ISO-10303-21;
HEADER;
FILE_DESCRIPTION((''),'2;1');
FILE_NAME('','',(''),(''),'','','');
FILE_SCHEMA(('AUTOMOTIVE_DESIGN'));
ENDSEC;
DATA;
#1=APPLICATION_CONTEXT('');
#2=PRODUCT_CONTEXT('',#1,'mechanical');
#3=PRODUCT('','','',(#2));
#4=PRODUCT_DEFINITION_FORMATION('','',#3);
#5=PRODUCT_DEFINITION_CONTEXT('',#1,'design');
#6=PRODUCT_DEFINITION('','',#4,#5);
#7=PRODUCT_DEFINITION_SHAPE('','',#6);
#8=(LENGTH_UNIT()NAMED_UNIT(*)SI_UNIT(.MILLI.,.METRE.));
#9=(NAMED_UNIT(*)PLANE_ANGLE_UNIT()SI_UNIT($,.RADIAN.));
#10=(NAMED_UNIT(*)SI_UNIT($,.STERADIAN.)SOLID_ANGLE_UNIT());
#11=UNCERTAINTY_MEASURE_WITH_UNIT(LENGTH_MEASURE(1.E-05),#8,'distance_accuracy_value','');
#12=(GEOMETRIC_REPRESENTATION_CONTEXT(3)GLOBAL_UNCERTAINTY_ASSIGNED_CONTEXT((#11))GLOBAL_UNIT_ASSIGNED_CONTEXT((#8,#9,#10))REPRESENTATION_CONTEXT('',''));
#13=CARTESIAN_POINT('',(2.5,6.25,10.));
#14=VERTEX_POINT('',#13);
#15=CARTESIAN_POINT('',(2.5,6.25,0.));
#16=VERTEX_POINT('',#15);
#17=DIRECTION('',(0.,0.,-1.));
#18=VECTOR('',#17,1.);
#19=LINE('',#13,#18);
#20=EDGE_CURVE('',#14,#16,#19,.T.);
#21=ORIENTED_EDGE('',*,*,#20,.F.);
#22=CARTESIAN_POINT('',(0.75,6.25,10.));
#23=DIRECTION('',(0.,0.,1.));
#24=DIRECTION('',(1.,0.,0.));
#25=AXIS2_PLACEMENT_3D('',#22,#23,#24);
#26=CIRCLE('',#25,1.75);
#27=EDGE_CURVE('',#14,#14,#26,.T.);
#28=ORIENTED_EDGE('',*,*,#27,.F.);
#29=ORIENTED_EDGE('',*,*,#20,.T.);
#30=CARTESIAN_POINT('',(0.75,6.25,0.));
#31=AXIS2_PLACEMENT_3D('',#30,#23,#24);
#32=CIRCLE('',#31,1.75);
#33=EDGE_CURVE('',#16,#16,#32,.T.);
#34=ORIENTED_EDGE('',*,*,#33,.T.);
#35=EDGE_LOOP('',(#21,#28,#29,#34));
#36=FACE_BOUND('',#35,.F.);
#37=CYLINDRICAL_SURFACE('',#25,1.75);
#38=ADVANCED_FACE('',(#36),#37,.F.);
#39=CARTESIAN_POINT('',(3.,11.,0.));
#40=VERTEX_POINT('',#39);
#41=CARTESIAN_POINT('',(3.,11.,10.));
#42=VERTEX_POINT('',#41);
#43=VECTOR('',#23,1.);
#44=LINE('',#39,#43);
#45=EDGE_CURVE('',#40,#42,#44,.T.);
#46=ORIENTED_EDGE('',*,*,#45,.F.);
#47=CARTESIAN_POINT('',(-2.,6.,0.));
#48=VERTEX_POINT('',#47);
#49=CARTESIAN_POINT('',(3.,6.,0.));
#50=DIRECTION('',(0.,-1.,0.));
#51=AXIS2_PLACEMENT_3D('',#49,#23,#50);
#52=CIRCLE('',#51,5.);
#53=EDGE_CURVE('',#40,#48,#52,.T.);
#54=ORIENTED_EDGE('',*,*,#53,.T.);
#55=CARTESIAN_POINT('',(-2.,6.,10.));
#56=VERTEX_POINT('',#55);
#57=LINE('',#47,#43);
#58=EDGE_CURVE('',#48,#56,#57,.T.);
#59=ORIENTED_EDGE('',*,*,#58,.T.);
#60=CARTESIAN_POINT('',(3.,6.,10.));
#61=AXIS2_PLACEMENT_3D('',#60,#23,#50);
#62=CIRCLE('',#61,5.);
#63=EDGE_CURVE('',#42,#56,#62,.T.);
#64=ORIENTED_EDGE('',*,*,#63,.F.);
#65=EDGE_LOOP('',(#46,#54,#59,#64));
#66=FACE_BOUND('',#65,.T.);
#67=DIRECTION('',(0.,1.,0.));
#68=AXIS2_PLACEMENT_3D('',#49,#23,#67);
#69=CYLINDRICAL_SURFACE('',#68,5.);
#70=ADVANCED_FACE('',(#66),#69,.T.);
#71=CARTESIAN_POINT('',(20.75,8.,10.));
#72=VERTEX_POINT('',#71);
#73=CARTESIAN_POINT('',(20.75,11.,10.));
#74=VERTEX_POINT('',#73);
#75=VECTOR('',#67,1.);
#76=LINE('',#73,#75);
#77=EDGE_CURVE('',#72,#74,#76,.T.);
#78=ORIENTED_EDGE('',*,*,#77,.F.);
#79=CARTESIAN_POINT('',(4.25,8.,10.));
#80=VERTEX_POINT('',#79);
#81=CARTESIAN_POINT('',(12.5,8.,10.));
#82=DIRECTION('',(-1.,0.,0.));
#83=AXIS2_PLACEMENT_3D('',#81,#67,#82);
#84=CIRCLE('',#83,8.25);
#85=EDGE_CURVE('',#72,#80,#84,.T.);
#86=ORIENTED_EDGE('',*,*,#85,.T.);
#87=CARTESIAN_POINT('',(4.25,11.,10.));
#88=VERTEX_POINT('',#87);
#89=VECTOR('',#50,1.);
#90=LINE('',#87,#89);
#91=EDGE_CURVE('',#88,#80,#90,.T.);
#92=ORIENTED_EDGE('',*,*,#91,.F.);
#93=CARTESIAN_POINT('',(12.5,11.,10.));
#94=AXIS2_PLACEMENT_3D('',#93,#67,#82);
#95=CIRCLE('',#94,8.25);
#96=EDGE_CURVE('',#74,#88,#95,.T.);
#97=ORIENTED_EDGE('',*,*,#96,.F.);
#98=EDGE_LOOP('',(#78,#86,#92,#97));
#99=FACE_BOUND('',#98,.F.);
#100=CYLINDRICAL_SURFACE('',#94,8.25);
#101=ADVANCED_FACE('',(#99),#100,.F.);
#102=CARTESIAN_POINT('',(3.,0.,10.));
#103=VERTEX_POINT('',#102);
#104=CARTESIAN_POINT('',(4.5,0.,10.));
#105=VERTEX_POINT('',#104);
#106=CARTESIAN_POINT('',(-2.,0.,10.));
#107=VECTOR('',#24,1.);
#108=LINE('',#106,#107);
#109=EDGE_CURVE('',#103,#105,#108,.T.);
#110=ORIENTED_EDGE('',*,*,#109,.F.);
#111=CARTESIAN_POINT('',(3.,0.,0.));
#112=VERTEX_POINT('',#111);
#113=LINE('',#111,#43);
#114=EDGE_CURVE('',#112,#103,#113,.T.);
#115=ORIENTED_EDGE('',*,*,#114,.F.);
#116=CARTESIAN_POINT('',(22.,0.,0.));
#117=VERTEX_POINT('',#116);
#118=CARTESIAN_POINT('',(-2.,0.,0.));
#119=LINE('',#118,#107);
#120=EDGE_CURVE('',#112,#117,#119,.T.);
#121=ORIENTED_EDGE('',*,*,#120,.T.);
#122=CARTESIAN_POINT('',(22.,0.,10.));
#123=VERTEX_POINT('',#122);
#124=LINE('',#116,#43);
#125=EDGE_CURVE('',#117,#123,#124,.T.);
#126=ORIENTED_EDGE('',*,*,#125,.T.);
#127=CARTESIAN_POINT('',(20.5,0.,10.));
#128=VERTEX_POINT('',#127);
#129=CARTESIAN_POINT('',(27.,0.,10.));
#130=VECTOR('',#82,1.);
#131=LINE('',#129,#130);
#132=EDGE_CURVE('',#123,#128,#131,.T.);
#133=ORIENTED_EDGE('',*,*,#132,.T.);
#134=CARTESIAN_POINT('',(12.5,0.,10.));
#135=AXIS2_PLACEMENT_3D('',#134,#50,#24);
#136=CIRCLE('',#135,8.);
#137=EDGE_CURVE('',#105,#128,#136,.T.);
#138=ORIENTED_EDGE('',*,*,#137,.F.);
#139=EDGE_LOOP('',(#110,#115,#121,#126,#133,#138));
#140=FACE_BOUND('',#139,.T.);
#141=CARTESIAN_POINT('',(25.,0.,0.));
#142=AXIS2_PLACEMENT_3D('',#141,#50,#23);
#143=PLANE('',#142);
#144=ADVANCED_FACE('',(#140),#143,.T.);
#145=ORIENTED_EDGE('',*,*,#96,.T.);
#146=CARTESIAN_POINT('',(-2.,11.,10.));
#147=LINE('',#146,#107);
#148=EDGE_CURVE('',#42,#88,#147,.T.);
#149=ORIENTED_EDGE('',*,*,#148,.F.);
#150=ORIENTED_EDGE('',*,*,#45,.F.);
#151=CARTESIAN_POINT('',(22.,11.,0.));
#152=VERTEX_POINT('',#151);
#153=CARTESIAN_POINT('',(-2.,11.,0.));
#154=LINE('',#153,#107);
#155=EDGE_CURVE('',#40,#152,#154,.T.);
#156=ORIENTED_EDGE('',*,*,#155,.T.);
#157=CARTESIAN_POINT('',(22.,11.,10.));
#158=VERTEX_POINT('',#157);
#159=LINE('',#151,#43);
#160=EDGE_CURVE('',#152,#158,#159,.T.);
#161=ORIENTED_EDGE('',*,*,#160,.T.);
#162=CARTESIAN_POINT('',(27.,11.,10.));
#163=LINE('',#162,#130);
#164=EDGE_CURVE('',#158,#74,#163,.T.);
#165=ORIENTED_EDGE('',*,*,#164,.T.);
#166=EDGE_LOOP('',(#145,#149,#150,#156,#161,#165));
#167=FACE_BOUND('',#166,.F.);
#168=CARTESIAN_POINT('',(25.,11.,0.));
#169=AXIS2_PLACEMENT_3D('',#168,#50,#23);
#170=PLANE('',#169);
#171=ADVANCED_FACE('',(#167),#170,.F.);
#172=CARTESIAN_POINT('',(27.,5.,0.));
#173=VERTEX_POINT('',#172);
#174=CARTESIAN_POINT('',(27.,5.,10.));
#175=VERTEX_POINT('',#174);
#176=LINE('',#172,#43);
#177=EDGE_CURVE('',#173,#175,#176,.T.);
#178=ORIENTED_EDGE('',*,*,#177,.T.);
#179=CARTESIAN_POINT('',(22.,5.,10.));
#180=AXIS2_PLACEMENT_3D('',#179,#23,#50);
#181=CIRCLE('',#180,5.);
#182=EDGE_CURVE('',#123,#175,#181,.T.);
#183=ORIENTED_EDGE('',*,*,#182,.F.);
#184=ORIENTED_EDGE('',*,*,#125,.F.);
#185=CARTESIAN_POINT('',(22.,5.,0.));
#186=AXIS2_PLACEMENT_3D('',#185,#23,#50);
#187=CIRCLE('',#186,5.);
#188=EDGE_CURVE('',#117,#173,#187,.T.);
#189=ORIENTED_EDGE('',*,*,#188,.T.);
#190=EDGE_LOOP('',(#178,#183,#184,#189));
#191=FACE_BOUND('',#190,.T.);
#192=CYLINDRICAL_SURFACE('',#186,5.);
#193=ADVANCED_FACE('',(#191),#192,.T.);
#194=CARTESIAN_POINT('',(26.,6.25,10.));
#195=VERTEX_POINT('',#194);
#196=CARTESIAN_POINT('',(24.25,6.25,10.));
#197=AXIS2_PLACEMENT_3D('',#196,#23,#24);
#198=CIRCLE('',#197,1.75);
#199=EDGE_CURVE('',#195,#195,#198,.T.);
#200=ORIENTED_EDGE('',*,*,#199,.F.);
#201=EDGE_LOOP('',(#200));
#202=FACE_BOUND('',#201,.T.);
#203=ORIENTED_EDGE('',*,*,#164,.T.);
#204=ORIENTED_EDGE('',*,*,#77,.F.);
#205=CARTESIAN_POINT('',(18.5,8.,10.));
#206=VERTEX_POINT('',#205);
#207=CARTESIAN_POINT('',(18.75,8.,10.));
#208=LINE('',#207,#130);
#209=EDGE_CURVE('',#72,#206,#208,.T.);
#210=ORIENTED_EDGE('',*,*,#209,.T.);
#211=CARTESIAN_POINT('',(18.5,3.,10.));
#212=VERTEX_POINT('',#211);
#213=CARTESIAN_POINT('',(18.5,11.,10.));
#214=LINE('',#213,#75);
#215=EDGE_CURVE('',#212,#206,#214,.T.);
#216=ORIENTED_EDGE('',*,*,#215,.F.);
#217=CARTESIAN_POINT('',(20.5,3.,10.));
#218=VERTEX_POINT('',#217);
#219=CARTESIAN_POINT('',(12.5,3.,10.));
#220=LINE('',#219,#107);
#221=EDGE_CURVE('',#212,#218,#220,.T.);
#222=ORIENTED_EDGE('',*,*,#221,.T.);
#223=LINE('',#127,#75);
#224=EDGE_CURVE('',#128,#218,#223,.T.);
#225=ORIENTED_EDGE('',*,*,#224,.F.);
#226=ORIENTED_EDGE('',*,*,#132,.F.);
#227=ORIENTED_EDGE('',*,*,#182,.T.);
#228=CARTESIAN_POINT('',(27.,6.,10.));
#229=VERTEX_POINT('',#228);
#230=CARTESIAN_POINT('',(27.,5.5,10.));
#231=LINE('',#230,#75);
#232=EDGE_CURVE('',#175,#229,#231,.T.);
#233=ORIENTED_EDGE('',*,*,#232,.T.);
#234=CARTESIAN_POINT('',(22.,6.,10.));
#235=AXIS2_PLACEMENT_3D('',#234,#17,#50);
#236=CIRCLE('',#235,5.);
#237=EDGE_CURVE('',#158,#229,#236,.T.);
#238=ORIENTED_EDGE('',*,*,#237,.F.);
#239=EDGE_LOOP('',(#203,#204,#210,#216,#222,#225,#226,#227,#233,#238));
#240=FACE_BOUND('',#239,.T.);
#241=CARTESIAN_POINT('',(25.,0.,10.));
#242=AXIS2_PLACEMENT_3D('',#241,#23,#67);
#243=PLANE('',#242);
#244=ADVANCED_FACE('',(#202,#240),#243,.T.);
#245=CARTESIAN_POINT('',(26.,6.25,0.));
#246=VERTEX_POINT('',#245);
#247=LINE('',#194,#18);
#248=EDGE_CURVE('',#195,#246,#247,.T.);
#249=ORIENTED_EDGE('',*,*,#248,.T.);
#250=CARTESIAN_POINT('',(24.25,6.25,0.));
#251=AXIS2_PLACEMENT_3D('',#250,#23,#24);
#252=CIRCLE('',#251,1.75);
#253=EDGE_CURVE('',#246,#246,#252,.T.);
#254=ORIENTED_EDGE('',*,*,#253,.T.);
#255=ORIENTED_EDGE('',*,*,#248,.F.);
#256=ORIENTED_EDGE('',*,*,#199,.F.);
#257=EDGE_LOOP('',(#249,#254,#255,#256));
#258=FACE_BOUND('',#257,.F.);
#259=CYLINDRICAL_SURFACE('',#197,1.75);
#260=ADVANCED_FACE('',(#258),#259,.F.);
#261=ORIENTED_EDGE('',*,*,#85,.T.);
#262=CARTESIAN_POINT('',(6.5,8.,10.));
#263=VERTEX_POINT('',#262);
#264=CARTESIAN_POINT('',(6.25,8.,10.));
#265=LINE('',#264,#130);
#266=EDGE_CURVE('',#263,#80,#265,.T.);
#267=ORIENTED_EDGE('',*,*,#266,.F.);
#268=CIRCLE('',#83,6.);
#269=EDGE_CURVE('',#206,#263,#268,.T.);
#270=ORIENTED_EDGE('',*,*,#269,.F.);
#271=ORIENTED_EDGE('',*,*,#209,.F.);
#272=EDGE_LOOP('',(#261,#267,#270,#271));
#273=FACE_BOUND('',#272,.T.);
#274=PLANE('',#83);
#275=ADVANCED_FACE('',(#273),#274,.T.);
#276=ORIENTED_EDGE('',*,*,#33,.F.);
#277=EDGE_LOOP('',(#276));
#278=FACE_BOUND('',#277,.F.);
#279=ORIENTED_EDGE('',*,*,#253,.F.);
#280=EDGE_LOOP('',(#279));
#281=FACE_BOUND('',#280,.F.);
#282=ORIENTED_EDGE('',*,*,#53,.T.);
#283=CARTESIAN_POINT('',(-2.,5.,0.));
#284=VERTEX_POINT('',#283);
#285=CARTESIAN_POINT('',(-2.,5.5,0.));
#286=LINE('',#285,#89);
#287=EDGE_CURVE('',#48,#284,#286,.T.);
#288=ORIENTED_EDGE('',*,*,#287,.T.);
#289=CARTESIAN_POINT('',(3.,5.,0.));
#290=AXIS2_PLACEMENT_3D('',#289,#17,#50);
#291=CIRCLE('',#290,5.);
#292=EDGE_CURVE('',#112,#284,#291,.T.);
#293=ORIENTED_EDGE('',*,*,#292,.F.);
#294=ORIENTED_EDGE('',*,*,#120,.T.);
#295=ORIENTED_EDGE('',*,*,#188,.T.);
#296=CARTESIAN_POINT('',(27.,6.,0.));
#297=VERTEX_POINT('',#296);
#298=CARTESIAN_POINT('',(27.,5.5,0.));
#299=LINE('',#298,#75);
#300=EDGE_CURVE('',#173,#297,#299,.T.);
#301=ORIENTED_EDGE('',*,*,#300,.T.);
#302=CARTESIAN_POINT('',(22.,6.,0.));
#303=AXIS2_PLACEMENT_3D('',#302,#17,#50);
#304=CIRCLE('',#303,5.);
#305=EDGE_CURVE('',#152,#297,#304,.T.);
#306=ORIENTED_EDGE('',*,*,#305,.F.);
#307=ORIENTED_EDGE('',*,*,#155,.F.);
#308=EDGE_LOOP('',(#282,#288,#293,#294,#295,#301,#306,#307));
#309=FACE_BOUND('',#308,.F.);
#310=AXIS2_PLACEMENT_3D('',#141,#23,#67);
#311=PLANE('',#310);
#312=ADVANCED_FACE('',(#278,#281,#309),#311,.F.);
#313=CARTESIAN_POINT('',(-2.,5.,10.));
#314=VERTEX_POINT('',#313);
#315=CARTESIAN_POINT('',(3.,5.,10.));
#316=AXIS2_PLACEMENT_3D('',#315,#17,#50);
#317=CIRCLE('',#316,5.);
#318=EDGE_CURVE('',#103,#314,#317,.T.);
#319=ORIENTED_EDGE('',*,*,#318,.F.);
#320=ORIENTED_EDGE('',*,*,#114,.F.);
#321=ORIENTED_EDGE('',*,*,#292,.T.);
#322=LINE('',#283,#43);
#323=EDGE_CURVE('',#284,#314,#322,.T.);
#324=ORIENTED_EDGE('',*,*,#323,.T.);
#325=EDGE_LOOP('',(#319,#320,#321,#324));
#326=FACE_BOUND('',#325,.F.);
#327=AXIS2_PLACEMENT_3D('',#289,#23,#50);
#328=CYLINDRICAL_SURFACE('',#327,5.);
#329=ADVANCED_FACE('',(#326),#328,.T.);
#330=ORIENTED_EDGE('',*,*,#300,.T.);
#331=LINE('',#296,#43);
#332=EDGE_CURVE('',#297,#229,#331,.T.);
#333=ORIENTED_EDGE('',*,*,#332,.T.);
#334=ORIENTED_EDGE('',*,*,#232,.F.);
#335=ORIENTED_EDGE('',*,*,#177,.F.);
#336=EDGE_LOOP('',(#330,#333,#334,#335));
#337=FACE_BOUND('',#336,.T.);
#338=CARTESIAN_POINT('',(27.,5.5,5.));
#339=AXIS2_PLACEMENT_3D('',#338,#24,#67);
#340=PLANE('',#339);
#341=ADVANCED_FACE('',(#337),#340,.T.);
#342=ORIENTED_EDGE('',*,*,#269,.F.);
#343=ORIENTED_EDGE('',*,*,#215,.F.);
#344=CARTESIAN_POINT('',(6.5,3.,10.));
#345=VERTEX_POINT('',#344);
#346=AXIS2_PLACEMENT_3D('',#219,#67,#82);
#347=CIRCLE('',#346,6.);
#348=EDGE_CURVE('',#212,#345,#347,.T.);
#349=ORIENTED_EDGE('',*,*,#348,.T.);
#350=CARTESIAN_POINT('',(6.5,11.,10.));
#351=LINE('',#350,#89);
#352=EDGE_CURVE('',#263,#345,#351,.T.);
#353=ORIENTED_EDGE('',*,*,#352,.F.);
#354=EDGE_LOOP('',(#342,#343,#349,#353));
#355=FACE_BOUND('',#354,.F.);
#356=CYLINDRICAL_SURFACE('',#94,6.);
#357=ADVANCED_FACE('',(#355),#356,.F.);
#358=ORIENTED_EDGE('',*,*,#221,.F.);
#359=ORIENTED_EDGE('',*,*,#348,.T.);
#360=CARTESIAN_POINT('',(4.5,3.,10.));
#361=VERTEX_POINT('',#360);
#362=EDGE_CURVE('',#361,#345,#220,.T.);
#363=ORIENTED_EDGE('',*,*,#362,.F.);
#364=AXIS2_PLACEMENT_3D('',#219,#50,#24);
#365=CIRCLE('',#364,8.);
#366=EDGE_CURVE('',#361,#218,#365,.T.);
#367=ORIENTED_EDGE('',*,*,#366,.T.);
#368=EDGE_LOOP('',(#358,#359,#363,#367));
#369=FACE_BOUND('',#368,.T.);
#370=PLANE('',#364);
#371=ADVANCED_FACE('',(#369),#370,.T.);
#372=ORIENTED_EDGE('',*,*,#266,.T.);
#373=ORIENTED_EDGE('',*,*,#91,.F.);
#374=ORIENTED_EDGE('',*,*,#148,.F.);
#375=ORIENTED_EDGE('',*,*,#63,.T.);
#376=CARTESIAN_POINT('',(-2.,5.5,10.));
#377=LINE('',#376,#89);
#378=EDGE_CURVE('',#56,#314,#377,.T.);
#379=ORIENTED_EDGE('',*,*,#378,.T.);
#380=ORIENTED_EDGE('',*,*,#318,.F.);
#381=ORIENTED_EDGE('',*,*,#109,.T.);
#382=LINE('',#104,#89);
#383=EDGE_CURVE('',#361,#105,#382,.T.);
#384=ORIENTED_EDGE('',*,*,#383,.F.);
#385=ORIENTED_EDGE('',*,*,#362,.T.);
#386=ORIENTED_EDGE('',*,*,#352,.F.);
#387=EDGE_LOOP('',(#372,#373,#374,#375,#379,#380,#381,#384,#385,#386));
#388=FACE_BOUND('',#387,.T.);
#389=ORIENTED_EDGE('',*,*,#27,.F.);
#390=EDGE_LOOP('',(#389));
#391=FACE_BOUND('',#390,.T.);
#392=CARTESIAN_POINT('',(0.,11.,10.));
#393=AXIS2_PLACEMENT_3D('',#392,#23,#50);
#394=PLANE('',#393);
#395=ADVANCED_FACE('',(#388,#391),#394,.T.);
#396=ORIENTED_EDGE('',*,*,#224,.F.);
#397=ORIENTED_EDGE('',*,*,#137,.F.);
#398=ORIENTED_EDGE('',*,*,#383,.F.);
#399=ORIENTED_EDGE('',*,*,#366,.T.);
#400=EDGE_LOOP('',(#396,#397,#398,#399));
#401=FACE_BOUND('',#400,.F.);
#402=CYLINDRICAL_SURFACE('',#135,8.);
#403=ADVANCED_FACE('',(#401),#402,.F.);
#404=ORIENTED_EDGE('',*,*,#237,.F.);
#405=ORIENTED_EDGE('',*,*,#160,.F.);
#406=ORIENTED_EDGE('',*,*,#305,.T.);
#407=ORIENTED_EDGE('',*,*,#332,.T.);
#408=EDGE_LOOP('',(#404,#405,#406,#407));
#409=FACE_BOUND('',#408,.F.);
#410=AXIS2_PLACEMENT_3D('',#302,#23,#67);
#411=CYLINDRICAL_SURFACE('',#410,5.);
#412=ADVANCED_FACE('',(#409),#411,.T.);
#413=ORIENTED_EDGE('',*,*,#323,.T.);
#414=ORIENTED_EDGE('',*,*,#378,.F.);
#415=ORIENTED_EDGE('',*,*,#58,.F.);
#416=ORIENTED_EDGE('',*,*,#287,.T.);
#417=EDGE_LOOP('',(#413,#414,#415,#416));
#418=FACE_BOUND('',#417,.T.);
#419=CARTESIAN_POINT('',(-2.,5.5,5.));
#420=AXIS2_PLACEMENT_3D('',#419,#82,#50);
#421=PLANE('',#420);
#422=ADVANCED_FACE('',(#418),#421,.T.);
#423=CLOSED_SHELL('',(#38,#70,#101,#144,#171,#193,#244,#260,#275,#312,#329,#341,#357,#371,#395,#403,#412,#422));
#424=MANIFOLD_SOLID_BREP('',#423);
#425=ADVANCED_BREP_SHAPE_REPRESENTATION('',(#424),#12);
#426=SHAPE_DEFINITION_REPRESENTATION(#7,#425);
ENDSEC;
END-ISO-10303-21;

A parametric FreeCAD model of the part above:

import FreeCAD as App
import Part
import Sketcher


def edges_at(feature, points):
    """Names of the edges that pass closest to the given points."""
    edges = feature.Shape.Edges
    near = lambda p: min(range(len(edges)), key=lambda i: edges[i].distToShape(Part.Vertex(*p))[0])
    return sorted({f"Edge{near(p) + 1}" for p in points})


def add_polygon(sketch, points):
    """Adds a closed chain of lines whose ends are joined by coincident constraints."""
    first, n = sketch.GeometryCount, len(points)
    for a, b in zip(points, points[1:] + points[:1]):
        sketch.addGeometry(Part.LineSegment(App.Vector(*a, 0), App.Vector(*b, 0)), False)
    for i in range(n):
        sketch.addConstraint(Sketcher.Constraint("Coincident", first + i, 2, first + (i + 1) % n, 1))

doc = App.newDocument("Part")
body = doc.addObject("PartDesign::Body", "Body")

sketch1 = doc.addObject("Sketcher::SketchObject", "Sketch")
body.addObject(sketch1)
sketch1.AttachmentSupport = (doc.XY_Plane, [""])
sketch1.MapMode = "FlatFace"
add_polygon(sketch1, [(0, 11), (0, 0), (25, 0), (25, 11)])
sketch1.addConstraint([
    Sketcher.Constraint("Vertical", 0),
    Sketcher.Constraint("Horizontal", 1),
    Sketcher.Constraint("Vertical", 2),
    Sketcher.Constraint("Horizontal", 3),
    Sketcher.Constraint("Coincident", 0, 2, -1, 1),
    Sketcher.Constraint("DistanceX", 1, 1, 1, 2, 25.0),
    Sketcher.Constraint("DistanceY", 0, 2, 0, 1, 11.0),
])
pad1 = doc.addObject("PartDesign::Pad", "Pad")
body.addObject(pad1)
pad1.Profile = sketch1
pad1.Length = 10

sketch2 = doc.addObject("Sketcher::SketchObject", "Sketch001")
body.addObject(sketch2)
sketch2.AttachmentSupport = (doc.XZ_Plane, [""])
sketch2.MapMode = "FlatFace"
sketch2.addGeometry(Part.Circle(App.Vector(12, 10, 0), App.Vector(0, 0, 1), 8), False)
sketch2.addConstraint([
    Sketcher.Constraint("Diameter", 0, 16.0),
    Sketcher.Constraint("DistanceY", -1, 1, 0, 3, 10.0),
    Sketcher.Constraint("DistanceX", -1, 1, 0, 3, 12.5),
])
pocket1 = doc.addObject("PartDesign::Pocket", "Pocket")
body.addObject(pocket1)
pocket1.Profile = sketch2
pocket1.Length = 3

sketch3 = doc.addObject("Sketcher::SketchObject", "Sketch002")
body.addObject(sketch3)
sketch3.AttachmentSupport = (doc.XZ_Plane, [""])
sketch3.MapMode = "FlatFace"
sketch3.AttachmentOffset = App.Placement(App.Vector(0, 0, -11), App.Rotation())
sketch3.addGeometry(Part.Circle(App.Vector(12, 10, 0), App.Vector(0, 0, 1), 6), False)
sketch3.addConstraint([
    Sketcher.Constraint("Diameter", 0, 12.0),
    Sketcher.Constraint("DistanceY", -1, 1, 0, 3, 10.0),
    Sketcher.Constraint("DistanceX", -1, 1, 0, 3, 12.5),
])
pocket2 = doc.addObject("PartDesign::Pocket", "Pocket001")
body.addObject(pocket2)
pocket2.Profile = sketch3
pocket2.Length = 9
pocket2.Reversed = True

sketch4 = doc.addObject("Sketcher::SketchObject", "Sketch003")
body.addObject(sketch4)
sketch4.AttachmentSupport = (doc.YZ_Plane, [""])
sketch4.MapMode = "FlatFace"
add_polygon(sketch4, [(11, 10), (11, 0), (0, 0), (0, 10)])
sketch4.addConstraint([
    Sketcher.Constraint("Vertical", 0),
    Sketcher.Constraint("Horizontal", 1),
    Sketcher.Constraint("Vertical", 2),
    Sketcher.Constraint("Horizontal", 3),
    Sketcher.Constraint("Coincident", 1, 2, -1, 1),
    Sketcher.Constraint("DistanceX", 1, 2, 1, 1, 11.0),
    Sketcher.Constraint("DistanceY", 0, 2, 0, 1, 10.0),
])
pad2 = doc.addObject("PartDesign::Pad", "Pad001")
body.addObject(pad2)
pad2.Profile = sketch4
pad2.Length = 2
pad2.Reversed = True

sketch5 = doc.addObject("Sketcher::SketchObject", "Sketch004")
body.addObject(sketch5)
sketch5.AttachmentSupport = (doc.YZ_Plane, [""])
sketch5.MapMode = "FlatFace"
sketch5.AttachmentOffset = App.Placement(App.Vector(0, 0, 25), App.Rotation())
add_polygon(sketch5, [(0, 10), (0, 0), (11, 0), (11, 10)])
sketch5.addConstraint([
    Sketcher.Constraint("Vertical", 0),
    Sketcher.Constraint("Horizontal", 1),
    Sketcher.Constraint("Vertical", 2),
    Sketcher.Constraint("Horizontal", 3),
    Sketcher.Constraint("Coincident", 0, 2, -1, 1),
    Sketcher.Constraint("DistanceX", 1, 1, 1, 2, 11.0),
    Sketcher.Constraint("DistanceY", 0, 2, 0, 1, 10.0),
])
pad3 = doc.addObject("PartDesign::Pad", "Pad002")
body.addObject(pad3)
pad3.Profile = sketch5
pad3.Length = 2
doc.recompute()

fillet = doc.addObject("PartDesign::Fillet", "Fillet")
body.addObject(fillet)
fillet.Base = (pad3, edges_at(pad3, [
    (27, 11, 5),
    (27, 0, 5),
    (-2, 11, 5),
    (-2, 0, 5),
]))
fillet.Radius = 5

sketch6 = doc.addObject("Sketcher::SketchObject", "Sketch005")
body.addObject(sketch6)
sketch6.AttachmentSupport = (doc.XY_Plane, [""])
sketch6.MapMode = "FlatFace"
sketch6.AttachmentOffset = App.Placement(App.Vector(0, 0, 10), App.Rotation())
sketch6.addGeometry([
    Part.Circle(App.Vector(0.8, 6.2, 0), App.Vector(0, 0, 1), 1.8),
    Part.Circle(App.Vector(24.2, 6.2, 0), App.Vector(0, 0, 1), 1.8),
], False)
sketch6.addConstraint([
    Sketcher.Constraint("Equal", 0, 1),
    Sketcher.Constraint("Horizontal", 0, 3, 1, 3),
    Sketcher.Constraint("Diameter", 0, 3.5),
    Sketcher.Constraint("DistanceX", 0, 3, 1, 3, 23.5),
    Sketcher.Constraint("DistanceX", -1, 1, 0, 3, 0.75),
    Sketcher.Constraint("DistanceY", -1, 1, 0, 3, 6.25),
])
pocket3 = doc.addObject("PartDesign::Pocket", "Pocket002")
body.addObject(pocket3)
pocket3.Profile = sketch6
pocket3.Length = 25

sketch7 = doc.addObject("Sketcher::SketchObject", "Sketch006")
body.addObject(sketch7)
sketch7.AttachmentSupport = (doc.XZ_Plane, [""])
sketch7.MapMode = "FlatFace"
sketch7.AttachmentOffset = App.Placement(App.Vector(0, 0, -11), App.Rotation())
sketch7.addGeometry(Part.Circle(App.Vector(12, 10, 0), App.Vector(0, 0, 1), 8), False)
sketch7.addConstraint([
    Sketcher.Constraint("Diameter", 0, 16.5),
    Sketcher.Constraint("DistanceY", -1, 1, 0, 3, 10.0),
    Sketcher.Constraint("DistanceX", -1, 1, 0, 3, 12.5),
])
pocket4 = doc.addObject("PartDesign::Pocket", "Pocket003")
body.addObject(pocket4)
pocket4.Profile = sketch7
pocket4.Length = 3
pocket4.Reversed = True

doc.recompute()
